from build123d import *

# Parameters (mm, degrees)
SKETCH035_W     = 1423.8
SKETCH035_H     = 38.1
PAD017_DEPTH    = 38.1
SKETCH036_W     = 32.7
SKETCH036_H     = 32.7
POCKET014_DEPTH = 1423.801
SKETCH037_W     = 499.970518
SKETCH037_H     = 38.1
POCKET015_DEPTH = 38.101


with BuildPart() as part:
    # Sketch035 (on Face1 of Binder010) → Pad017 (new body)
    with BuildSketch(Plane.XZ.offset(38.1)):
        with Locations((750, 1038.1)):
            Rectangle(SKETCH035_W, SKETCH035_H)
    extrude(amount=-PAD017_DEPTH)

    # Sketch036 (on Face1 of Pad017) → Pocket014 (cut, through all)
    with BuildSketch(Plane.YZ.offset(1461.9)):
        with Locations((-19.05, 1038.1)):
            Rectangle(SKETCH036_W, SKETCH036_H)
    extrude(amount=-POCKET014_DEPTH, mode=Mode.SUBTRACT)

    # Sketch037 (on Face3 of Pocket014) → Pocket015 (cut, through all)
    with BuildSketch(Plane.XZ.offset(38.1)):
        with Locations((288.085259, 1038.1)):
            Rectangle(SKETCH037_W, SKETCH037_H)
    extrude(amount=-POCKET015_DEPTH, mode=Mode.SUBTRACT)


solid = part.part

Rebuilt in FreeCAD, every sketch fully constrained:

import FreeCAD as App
import Part
import Sketcher
Q = App.Units.Quantity

doc = App.newDocument("Part")
body = doc.addObject("PartDesign::Body", "Body")

# Sketch on XZ plane
sketch1 = body.newObject("Sketcher::SketchObject", "Sketch")
sketch1.AttachmentSupport = (doc.getObject("XZ_Plane"), [""])
sketch1.MapMode = "FlatFace"
sketch1.AttachmentOffset = App.Placement(App.Vector(0, 0, 38.1), App.Rotation())
sketch1.addGeometry([
    Part.LineSegment(App.Vector(38, 1057, 0), App.Vector(38, 1019, 0)),
    Part.LineSegment(App.Vector(38, 1019, 0), App.Vector(1462, 1019, 0)),
    Part.LineSegment(App.Vector(1462, 1019, 0), App.Vector(1462, 1057, 0)),
    Part.LineSegment(App.Vector(1462, 1057, 0), App.Vector(38, 1057, 0)),
], False)
sketch1.addConstraint([
    Sketcher.Constraint("Coincident", 0, 2, 1, 1),
    Sketcher.Constraint("Coincident", 1, 2, 2, 1),
    Sketcher.Constraint("Coincident", 2, 2, 3, 1),
    Sketcher.Constraint("Coincident", 3, 2, 0, 1),
    Sketcher.Constraint("Vertical", 0),
    Sketcher.Constraint("Horizontal", 1),
    Sketcher.Constraint("Vertical", 2),
    Sketcher.Constraint("Horizontal", 3),
    Sketcher.Constraint("DistanceX", 1, 1, 1, 2, Q("1423.8 mm")),
    Sketcher.Constraint("DistanceY", 0, 2, 0, 1, Q("38.1 mm")),
    Sketcher.Constraint("DistanceX", -1, 1, 0, 2, Q("38.1 mm")),
    Sketcher.Constraint("DistanceY", -1, 1, 0, 2, Q("1019.05 mm")),
])
pad1 = body.newObject("PartDesign::Pad", "Pad")
pad1.Profile = sketch1
pad1.Length = 38.1
pad1.Reversed = True

# Sketch on YZ plane
sketch2 = body.newObject("Sketcher::SketchObject", "Sketch001")
sketch2.AttachmentSupport = (doc.getObject("YZ_Plane"), [""])
sketch2.MapMode = "FlatFace"
sketch2.AttachmentOffset = App.Placement(App.Vector(0, 0, 1461.9), App.Rotation())
sketch2.addGeometry([
    Part.LineSegment(App.Vector(-35, 1054, 0), App.Vector(-35, 1022, 0)),
    Part.LineSegment(App.Vector(-35, 1022, 0), App.Vector(-3, 1022, 0)),
    Part.LineSegment(App.Vector(-3, 1022, 0), App.Vector(-3, 1054, 0)),
    Part.LineSegment(App.Vector(-3, 1054, 0), App.Vector(-35, 1054, 0)),
], False)
sketch2.addConstraint([
    Sketcher.Constraint("Coincident", 0, 2, 1, 1),
    Sketcher.Constraint("Coincident", 1, 2, 2, 1),
    Sketcher.Constraint("Coincident", 2, 2, 3, 1),
    Sketcher.Constraint("Coincident", 3, 2, 0, 1),
    Sketcher.Constraint("Vertical", 0),
    Sketcher.Constraint("Horizontal", 1),
    Sketcher.Constraint("Vertical", 2),
    Sketcher.Constraint("Horizontal", 3),
    Sketcher.Constraint("Equal", 3, 0),
    Sketcher.Constraint("DistanceX", 1, 1, 1, 2, Q("32.7 mm")),
    Sketcher.Constraint("DistanceX", 0, 2, -1, 1, Q("35.4 mm")),
    Sketcher.Constraint("DistanceY", -1, 1, 0, 2, Q("1021.75 mm")),
])
pocket1 = body.newObject("PartDesign::Pocket", "Pocket")
pocket1.Profile = sketch2
pocket1.Type = "ThroughAll"

# Sketch on XZ plane
sketch3 = body.newObject("Sketcher::SketchObject", "Sketch002")
sketch3.AttachmentSupport = (doc.getObject("XZ_Plane"), [""])
sketch3.MapMode = "FlatFace"
sketch3.AttachmentOffset = App.Placement(App.Vector(0, 0, 38.1), App.Rotation())
sketch3.addGeometry([
    Part.LineSegment(App.Vector(38, 1057, 0), App.Vector(38, 1019, 0)),
    Part.LineSegment(App.Vector(38, 1019, 0), App.Vector(538, 1019, 0)),
    Part.LineSegment(App.Vector(538, 1019, 0), App.Vector(538, 1057, 0)),
    Part.LineSegment(App.Vector(538, 1057, 0), App.Vector(38, 1057, 0)),
], False)
sketch3.addConstraint([
    Sketcher.Constraint("Coincident", 0, 2, 1, 1),
    Sketcher.Constraint("Coincident", 1, 2, 2, 1),
    Sketcher.Constraint("Coincident", 2, 2, 3, 1),
    Sketcher.Constraint("Coincident", 3, 2, 0, 1),
    Sketcher.Constraint("Vertical", 0),
    Sketcher.Constraint("Horizontal", 1),
    Sketcher.Constraint("Vertical", 2),
    Sketcher.Constraint("Horizontal", 3),
    Sketcher.Constraint("DistanceY", 0, 2, 0, 1, Q("38.1 mm")),
    Sketcher.Constraint("DistanceX", -1, 1, 0, 2, Q("38.1 mm")),
    Sketcher.Constraint("DistanceY", -1, 1, 0, 2, Q("1019.05 mm")),
    Sketcher.Constraint("DistanceX", 1, 1, 1, 2, Q("499.970518 mm")),
])
pocket2 = body.newObject("PartDesign::Pocket", "Pocket001")
pocket2.Profile = sketch3
pocket2.Type = "ThroughAll"

doc.recompute()
